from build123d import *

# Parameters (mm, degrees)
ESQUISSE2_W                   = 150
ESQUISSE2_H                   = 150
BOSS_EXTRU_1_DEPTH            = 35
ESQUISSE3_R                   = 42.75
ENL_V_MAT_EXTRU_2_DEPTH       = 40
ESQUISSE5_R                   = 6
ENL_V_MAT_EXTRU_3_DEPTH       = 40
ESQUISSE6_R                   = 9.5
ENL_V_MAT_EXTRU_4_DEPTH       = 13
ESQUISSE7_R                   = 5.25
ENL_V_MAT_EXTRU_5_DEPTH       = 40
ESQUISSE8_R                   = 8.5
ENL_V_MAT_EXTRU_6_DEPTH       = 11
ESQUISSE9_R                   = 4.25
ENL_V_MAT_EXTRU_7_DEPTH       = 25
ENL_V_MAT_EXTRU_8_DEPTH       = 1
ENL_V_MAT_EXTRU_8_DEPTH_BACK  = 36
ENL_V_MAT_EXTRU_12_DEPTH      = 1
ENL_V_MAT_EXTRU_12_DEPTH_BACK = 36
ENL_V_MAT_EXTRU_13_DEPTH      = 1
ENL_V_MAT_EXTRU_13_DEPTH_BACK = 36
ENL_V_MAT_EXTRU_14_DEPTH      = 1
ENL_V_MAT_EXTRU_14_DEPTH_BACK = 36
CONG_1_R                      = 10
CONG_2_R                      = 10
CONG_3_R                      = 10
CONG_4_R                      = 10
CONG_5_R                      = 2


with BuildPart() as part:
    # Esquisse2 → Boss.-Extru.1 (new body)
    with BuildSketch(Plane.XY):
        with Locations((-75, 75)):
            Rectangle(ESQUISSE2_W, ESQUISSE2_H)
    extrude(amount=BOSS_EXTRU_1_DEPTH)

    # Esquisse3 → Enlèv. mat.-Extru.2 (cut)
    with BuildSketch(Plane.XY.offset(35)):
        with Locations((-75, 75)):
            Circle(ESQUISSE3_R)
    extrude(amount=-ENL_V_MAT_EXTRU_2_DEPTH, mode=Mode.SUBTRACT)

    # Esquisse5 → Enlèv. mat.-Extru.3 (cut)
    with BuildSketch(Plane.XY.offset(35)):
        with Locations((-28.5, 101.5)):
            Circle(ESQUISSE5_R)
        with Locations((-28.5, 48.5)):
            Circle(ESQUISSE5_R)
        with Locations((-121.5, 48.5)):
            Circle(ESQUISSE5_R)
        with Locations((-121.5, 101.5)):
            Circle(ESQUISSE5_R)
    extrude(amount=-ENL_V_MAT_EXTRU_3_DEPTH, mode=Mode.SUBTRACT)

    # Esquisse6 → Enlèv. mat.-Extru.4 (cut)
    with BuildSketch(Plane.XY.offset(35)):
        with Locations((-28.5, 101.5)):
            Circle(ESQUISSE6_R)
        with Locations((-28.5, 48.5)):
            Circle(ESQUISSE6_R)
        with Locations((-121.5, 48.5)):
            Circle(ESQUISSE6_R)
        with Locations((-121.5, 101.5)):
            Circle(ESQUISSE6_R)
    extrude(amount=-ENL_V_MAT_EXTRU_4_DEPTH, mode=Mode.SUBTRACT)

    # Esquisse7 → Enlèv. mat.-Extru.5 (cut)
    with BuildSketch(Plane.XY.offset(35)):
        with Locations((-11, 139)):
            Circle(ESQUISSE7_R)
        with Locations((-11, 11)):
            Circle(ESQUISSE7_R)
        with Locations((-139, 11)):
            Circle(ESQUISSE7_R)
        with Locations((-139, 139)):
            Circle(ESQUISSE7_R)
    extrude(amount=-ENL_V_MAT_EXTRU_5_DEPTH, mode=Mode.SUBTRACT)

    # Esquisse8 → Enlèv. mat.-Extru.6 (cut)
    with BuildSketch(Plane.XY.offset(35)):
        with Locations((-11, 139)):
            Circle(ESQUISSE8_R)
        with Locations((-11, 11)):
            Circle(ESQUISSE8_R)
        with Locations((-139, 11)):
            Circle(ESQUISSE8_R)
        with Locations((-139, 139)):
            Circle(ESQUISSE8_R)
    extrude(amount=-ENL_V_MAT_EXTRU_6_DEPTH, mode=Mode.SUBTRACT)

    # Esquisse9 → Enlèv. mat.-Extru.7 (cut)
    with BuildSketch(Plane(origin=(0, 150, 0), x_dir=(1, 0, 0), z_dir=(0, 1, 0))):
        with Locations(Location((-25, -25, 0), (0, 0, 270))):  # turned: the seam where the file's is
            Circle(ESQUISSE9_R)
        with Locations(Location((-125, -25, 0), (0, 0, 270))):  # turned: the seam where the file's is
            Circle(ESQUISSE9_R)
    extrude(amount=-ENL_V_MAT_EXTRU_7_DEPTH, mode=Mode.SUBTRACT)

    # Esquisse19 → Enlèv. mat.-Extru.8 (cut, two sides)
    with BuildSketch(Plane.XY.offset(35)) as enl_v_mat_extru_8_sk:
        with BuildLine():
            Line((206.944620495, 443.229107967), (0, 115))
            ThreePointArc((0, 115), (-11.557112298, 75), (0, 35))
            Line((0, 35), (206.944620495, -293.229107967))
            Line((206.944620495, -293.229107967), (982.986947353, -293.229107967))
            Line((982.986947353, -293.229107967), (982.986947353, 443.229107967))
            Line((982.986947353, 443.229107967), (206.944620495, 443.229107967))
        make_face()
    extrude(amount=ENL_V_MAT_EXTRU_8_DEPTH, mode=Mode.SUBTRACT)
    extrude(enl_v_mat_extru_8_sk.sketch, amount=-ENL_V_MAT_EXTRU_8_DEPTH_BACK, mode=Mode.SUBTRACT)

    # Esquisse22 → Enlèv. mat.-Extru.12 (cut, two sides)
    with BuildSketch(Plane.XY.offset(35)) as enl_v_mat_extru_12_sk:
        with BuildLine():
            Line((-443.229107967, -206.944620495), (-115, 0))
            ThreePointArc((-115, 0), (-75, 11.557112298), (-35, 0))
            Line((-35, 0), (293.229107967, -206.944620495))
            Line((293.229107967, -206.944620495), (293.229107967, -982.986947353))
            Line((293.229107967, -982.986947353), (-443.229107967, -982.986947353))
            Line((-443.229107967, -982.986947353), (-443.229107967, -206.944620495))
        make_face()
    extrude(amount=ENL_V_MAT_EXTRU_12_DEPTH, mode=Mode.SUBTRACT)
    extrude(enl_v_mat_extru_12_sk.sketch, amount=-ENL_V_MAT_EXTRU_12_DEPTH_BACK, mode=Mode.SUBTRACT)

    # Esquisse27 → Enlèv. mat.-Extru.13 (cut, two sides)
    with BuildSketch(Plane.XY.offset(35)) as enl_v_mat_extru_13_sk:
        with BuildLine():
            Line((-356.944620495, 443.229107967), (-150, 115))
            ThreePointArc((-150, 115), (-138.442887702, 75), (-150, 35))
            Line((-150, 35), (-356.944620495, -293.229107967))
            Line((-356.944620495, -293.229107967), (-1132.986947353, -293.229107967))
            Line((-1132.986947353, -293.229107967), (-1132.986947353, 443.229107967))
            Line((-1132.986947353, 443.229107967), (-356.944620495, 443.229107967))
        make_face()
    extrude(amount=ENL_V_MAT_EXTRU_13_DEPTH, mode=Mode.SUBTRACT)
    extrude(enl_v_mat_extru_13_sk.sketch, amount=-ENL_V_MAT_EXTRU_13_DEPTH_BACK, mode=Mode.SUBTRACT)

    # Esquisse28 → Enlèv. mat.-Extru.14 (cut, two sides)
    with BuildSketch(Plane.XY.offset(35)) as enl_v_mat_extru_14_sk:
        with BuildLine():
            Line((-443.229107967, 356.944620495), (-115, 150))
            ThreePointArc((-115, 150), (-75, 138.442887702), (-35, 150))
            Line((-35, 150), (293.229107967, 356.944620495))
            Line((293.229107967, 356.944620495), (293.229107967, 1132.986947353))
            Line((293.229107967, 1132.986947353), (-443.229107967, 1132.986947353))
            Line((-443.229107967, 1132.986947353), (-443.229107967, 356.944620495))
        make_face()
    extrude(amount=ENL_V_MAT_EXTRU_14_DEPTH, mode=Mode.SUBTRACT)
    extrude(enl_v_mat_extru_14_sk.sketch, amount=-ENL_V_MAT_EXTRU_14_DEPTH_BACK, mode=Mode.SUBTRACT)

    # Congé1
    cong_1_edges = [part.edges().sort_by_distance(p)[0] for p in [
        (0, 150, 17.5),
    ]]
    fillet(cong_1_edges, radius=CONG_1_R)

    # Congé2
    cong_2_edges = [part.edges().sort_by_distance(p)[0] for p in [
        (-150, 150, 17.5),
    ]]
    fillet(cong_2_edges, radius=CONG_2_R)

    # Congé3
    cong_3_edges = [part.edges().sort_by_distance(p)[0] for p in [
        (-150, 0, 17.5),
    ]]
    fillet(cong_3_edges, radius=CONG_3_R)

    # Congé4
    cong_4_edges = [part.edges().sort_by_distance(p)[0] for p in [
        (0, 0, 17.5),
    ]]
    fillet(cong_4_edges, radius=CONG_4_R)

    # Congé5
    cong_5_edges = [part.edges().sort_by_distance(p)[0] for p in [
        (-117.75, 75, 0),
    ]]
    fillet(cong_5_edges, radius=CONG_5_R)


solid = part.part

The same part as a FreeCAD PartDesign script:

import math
import FreeCAD as App
import Part
import Sketcher
from FreeCAD import Vector


def edges_at(feature, points):
    """Names of the edges that pass closest to the given points."""
    edges = feature.Shape.Edges
    near = lambda p: min(range(len(edges)), key=lambda i: edges[i].distToShape(Part.Vertex(*p))[0])
    return sorted({f"Edge{near(p) + 1}" for p in points})


def add_polygon(sketch, points):
    """Adds a closed chain of lines whose ends are joined by coincident constraints."""
    first, n = sketch.GeometryCount, len(points)
    for a, b in zip(points, points[1:] + points[:1]):
        sketch.addGeometry(Part.LineSegment(App.Vector(*a, 0), App.Vector(*b, 0)), False)
    for i in range(n):
        sketch.addConstraint(Sketcher.Constraint("Coincident", first + i, 2, first + (i + 1) % n, 1))

doc = App.newDocument("Part")
body = doc.addObject("PartDesign::Body", "Body")

# Sketch on XY plane
sketch1 = body.newObject("Sketcher::SketchObject", "Sketch")
sketch1.AttachmentSupport = (doc.getObject("XY_Plane"), [""])
sketch1.MapMode = "FlatFace"
add_polygon(sketch1, [(-150, 150), (-150, 0), (0, 0), (0, 150)])  # lines 0-3
sketch1.addConstraint([
    Sketcher.Constraint("Vertical", 0),
    Sketcher.Constraint("Horizontal", 1),
    Sketcher.Constraint("Vertical", 2),
    Sketcher.Constraint("Horizontal", 3),
    Sketcher.Constraint("Coincident", 1, 2, -1, 1),
    Sketcher.Constraint("Equal", 3, 0),
    Sketcher.Constraint("DistanceX", 1, 1, 1, 2, 150.0),
])
pad1 = body.newObject("PartDesign::Pad", "Pad")
pad1.Profile = sketch1
pad1.Length = 35

# Sketch on XY plane
sketch2 = body.newObject("Sketcher::SketchObject", "Sketch001")
sketch2.AttachmentSupport = (doc.getObject("XY_Plane"), [""])
sketch2.MapMode = "FlatFace"
sketch2.AttachmentOffset = App.Placement(Vector(0, 0, 35), App.Rotation())
sketch2.addGeometry(Part.Circle(Vector(-75, 75, 0), Vector(0, 0, 1), 42.75), False)
sketch2.addConstraint([
    Sketcher.Constraint("Diameter", 0, 85.5),
    Sketcher.Constraint("DistanceX", 0, 3, -1, 1, 75.0),
    Sketcher.Constraint("DistanceY", -1, 1, 0, 3, 75.0),
])
pocket1 = body.newObject("PartDesign::Pocket", "Pocket")
pocket1.Profile = sketch2
pocket1.Length = 40

# Sketch on XY plane
sketch3 = body.newObject("Sketcher::SketchObject", "Sketch002")
sketch3.AttachmentSupport = (doc.getObject("XY_Plane"), [""])
sketch3.MapMode = "FlatFace"
sketch3.AttachmentOffset = App.Placement(Vector(0, 0, 35), App.Rotation())
sketch3.addGeometry([
    Part.Circle(Vector(-28.5, 101.5, 0), Vector(0, 0, 1), 6),
    Part.Circle(Vector(-28.5, 48.5, 0), Vector(0, 0, 1), 6),
    Part.Circle(Vector(-121.5, 48.5, 0), Vector(0, 0, 1), 6),
    Part.Circle(Vector(-121.5, 101.5, 0), Vector(0, 0, 1), 6),
], False)
sketch3.addConstraint([
    Sketcher.Constraint("Equal", 0, 1),
    Sketcher.Constraint("Equal", 1, 2),
    Sketcher.Constraint("Equal", 2, 3),
    Sketcher.Constraint("Horizontal", 1, 3, 2, 3),
    Sketcher.Constraint("Horizontal", 0, 3, 3, 3),
    Sketcher.Constraint("Vertical", 0, 3, 1, 3),
    Sketcher.Constraint("Vertical", 2, 3, 3, 3),
    Sketcher.Constraint("Diameter", 0, 12.0),
    Sketcher.Constraint("DistanceY", 1, 3, 0, 3, 53.0),
    Sketcher.Constraint("DistanceX", 2, 3, 1, 3, 93.0),
    Sketcher.Constraint("DistanceX", 0, 3, -1, 1, 28.5),
    Sketcher.Constraint("DistanceY", -1, 1, 0, 3, 101.5),
])
pocket2 = body.newObject("PartDesign::Pocket", "Pocket001")
pocket2.Profile = sketch3
pocket2.Length = 40

# Sketch on XY plane
sketch4 = body.newObject("Sketcher::SketchObject", "Sketch003")
sketch4.AttachmentSupport = (doc.getObject("XY_Plane"), [""])
sketch4.MapMode = "FlatFace"
sketch4.AttachmentOffset = App.Placement(Vector(0, 0, 35), App.Rotation())
sketch4.addGeometry([
    Part.Circle(Vector(-28.5, 101.5, 0), Vector(0, 0, 1), 9.5),
    Part.Circle(Vector(-28.5, 48.5, 0), Vector(0, 0, 1), 9.5),
    Part.Circle(Vector(-121.5, 48.5, 0), Vector(0, 0, 1), 9.5),
    Part.Circle(Vector(-121.5, 101.5, 0), Vector(0, 0, 1), 9.5),
], False)
sketch4.addConstraint([
    Sketcher.Constraint("Equal", 0, 1),
    Sketcher.Constraint("Equal", 1, 2),
    Sketcher.Constraint("Equal", 2, 3),
    Sketcher.Constraint("Horizontal", 1, 3, 2, 3),
    Sketcher.Constraint("Horizontal", 0, 3, 3, 3),
    Sketcher.Constraint("Vertical", 0, 3, 1, 3),
    Sketcher.Constraint("Vertical", 2, 3, 3, 3),
    Sketcher.Constraint("Diameter", 0, 19.0),
    Sketcher.Constraint("DistanceY", 1, 3, 0, 3, 53.0),
    Sketcher.Constraint("DistanceX", 2, 3, 1, 3, 93.0),
    Sketcher.Constraint("DistanceX", 0, 3, -1, 1, 28.5),
    Sketcher.Constraint("DistanceY", -1, 1, 0, 3, 101.5),
])
pocket3 = body.newObject("PartDesign::Pocket", "Pocket002")
pocket3.Profile = sketch4
pocket3.Length = 13

# Sketch on XY plane
sketch5 = body.newObject("Sketcher::SketchObject", "Sketch004")
sketch5.AttachmentSupport = (doc.getObject("XY_Plane"), [""])
sketch5.MapMode = "FlatFace"
sketch5.AttachmentOffset = App.Placement(Vector(0, 0, 35), App.Rotation())
sketch5.addGeometry([
    Part.Circle(Vector(-11, 139, 0), Vector(0, 0, 1), 5.25),
    Part.Circle(Vector(-11, 11, 0), Vector(0, 0, 1), 5.25),
    Part.Circle(Vector(-139, 11, 0), Vector(0, 0, 1), 5.25),
    Part.Circle(Vector(-139, 139, 0), Vector(0, 0, 1), 5.25),
], False)
sketch5.addConstraint([
    Sketcher.Constraint("Equal", 0, 1),
    Sketcher.Constraint("Equal", 1, 2),
    Sketcher.Constraint("Equal", 2, 3),
    Sketcher.Constraint("Horizontal", 1, 3, 2, 3),
    Sketcher.Constraint("Horizontal", 0, 3, 3, 3),
    Sketcher.Constraint("Vertical", 0, 3, 1, 3),
    Sketcher.Constraint("Vertical", 2, 3, 3, 3),
    Sketcher.Constraint("Diameter", 0, 10.5),
    Sketcher.Constraint("DistanceX", 0, 3, -1, 1, 11.0),
    Sketcher.Constraint("DistanceY", -1, 1, 0, 3, 139.0),
    Sketcher.Constraint("DistanceY", -1, 1, 1, 3, 11.0),
    Sketcher.Constraint("DistanceX", 2, 3, -1, 1, 139.0),
])
pocket4 = body.newObject("PartDesign::Pocket", "Pocket003")
pocket4.Profile = sketch5
pocket4.Length = 40

# Sketch on XY plane
sketch6 = body.newObject("Sketcher::SketchObject", "Sketch005")
sketch6.AttachmentSupport = (doc.getObject("XY_Plane"), [""])
sketch6.MapMode = "FlatFace"
sketch6.AttachmentOffset = App.Placement(Vector(0, 0, 35), App.Rotation())
sketch6.addGeometry([
    Part.Circle(Vector(-11, 139, 0), Vector(0, 0, 1), 8.5),
    Part.Circle(Vector(-11, 11, 0), Vector(0, 0, 1), 8.5),
    Part.Circle(Vector(-139, 11, 0), Vector(0, 0, 1), 8.5),
    Part.Circle(Vector(-139, 139, 0), Vector(0, 0, 1), 8.5),
], False)
sketch6.addConstraint([
    Sketcher.Constraint("Equal", 0, 1),
    Sketcher.Constraint("Equal", 1, 2),
    Sketcher.Constraint("Equal", 2, 3),
    Sketcher.Constraint("Horizontal", 1, 3, 2, 3),
    Sketcher.Constraint("Horizontal", 0, 3, 3, 3),
    Sketcher.Constraint("Vertical", 0, 3, 1, 3),
    Sketcher.Constraint("Vertical", 2, 3, 3, 3),
    Sketcher.Constraint("Diameter", 0, 17.0),
    Sketcher.Constraint("DistanceX", 0, 3, -1, 1, 11.0),
    Sketcher.Constraint("DistanceY", -1, 1, 0, 3, 139.0),
    Sketcher.Constraint("DistanceY", -1, 1, 1, 3, 11.0),
    Sketcher.Constraint("DistanceX", 2, 3, -1, 1, 139.0),
])
pocket5 = body.newObject("PartDesign::Pocket", "Pocket004")
pocket5.Profile = sketch6
pocket5.Length = 11

# Sketch on XZ plane
sketch7 = body.newObject("Sketcher::SketchObject", "Sketch006")
sketch7.AttachmentSupport = (doc.getObject("XZ_Plane"), [""])
sketch7.MapMode = "FlatFace"
sketch7.AttachmentOffset = App.Placement(Vector(0, 0, -150), App.Rotation())
sketch7.addGeometry([
    Part.Circle(Vector(-25, 25, 0), Vector(0, 0, 1), 4.25),
    Part.Circle(Vector(-125, 25, 0), Vector(0, 0, 1), 4.25),
], False)
sketch7.addConstraint([
    Sketcher.Constraint("Equal", 0, 1),
    Sketcher.Constraint("Horizontal", 0, 3, 1, 3),
    Sketcher.Constraint("Diameter", 0, 8.5),
    Sketcher.Constraint("DistanceX", 0, 3, -1, 1, 25.0),
    Sketcher.Constraint("DistanceY", -1, 1, 0, 3, 25.0),
    Sketcher.Constraint("DistanceX", 1, 3, -1, 1, 125.0),
])
pocket6 = body.newObject("PartDesign::Pocket", "Pocket005")
pocket6.Profile = sketch7
pocket6.Length = 25
pocket6.Reversed = True

# Sketch on XY plane
sketch8 = body.newObject("Sketcher::SketchObject", "Sketch007")
sketch8.AttachmentSupport = (doc.getObject("XY_Plane"), [""])
sketch8.MapMode = "FlatFace"
sketch8.AttachmentOffset = App.Placement(Vector(0, 0, 35), App.Rotation())
sketch8.addGeometry([
    Part.LineSegment(Vector(206.94462, 443.229108, 0), Vector(0, 115, 0)),  # 0
    Part.ArcOfCircle(Part.Circle(Vector(63.442888, 75, 0), Vector(0, 0, 1), 75), math.radians(147.769047), math.radians(212.230953)),  # 1
    Part.LineSegment(Vector(0, 35, 0), Vector(206.94462, -293.229108, 0)),  # 2
    Part.LineSegment(Vector(206.94462, -293.229108, 0), Vector(982.986947, -293.229108, 0)),  # 3
    Part.LineSegment(Vector(982.986947, -293.229108, 0), Vector(982.986947, 443.229108, 0)),  # 4
    Part.LineSegment(Vector(982.986947, 443.229108, 0), Vector(206.94462, 443.229108, 0)),  # 5
], False)
sketch8.addConstraint([
    Sketcher.Constraint("Tangent", 0, 2, 1, 1),
    Sketcher.Constraint("Tangent", 1, 2, 2, 1),
    Sketcher.Constraint("Coincident", 2, 2, 3, 1),
    Sketcher.Constraint("Coincident", 3, 2, 4, 1),
    Sketcher.Constraint("Coincident", 4, 2, 5, 1),
    Sketcher.Constraint("Coincident", 5, 2, 0, 1),
    Sketcher.Constraint("Horizontal", 3),
    Sketcher.Constraint("Vertical", 4),
    Sketcher.Constraint("Horizontal", 5),
    Sketcher.Constraint("PointOnObject", 0, 2, -2),
    Sketcher.Constraint("PointOnObject", 1, 2, -2),
    Sketcher.Constraint("Vertical", 2, 2, 5, 2),
    Sketcher.Constraint("Radius", 1, 75.0),
    Sketcher.Constraint("DistanceY", -1, 1, 1, 3, 75.0),
    Sketcher.Constraint("DistanceY", -1, 1, 0, 2, 115.0),
    Sketcher.Constraint("DistanceX", 3, 1, 3, 2, 776.042327),
    Sketcher.Constraint("DistanceY", 4, 1, 4, 2, 736.458216),
])
pocket7 = body.newObject("PartDesign::Pocket", "Pocket006")
pocket7.Profile = sketch8
pocket7.Type = "ThroughAll"
pocket7.Midplane = True

# Sketch on XY plane
sketch9 = body.newObject("Sketcher::SketchObject", "Sketch008")
sketch9.AttachmentSupport = (doc.getObject("XY_Plane"), [""])
sketch9.MapMode = "FlatFace"
sketch9.AttachmentOffset = App.Placement(Vector(0, 0, 35), App.Rotation())
sketch9.addGeometry([
    Part.LineSegment(Vector(-115, 0, 0), Vector(-443.229108, -206.94462, 0)),  # 0
    Part.LineSegment(Vector(-443.229108, -206.94462, 0), Vector(-443.229108, -982.986947, 0)),  # 1
    Part.LineSegment(Vector(-443.229108, -982.986947, 0), Vector(293.229108, -982.986947, 0)),  # 2
    Part.LineSegment(Vector(293.229108, -982.986947, 0), Vector(293.229108, -206.94462, 0)),  # 3
    Part.LineSegment(Vector(293.229108, -206.94462, 0), Vector(-35, 0, 0)),  # 4
    Part.ArcOfCircle(Part.Circle(Vector(-75, -63.442888, 0), Vector(0, 0, 1), 75), math.radians(57.769047), math.radians(122.230953)),  # 5
], False)
sketch9.addConstraint([
    Sketcher.Constraint("Coincident", 0, 2, 1, 1),
    Sketcher.Constraint("Coincident", 1, 2, 2, 1),
    Sketcher.Constraint("Coincident", 2, 2, 3, 1),
    Sketcher.Constraint("Coincident", 3, 2, 4, 1),
    Sketcher.Constraint("Tangent", 4, 2, 5, 1),
    Sketcher.Constraint("Tangent", 5, 2, 0, 1),
    Sketcher.Constraint("Vertical", 1),
    Sketcher.Constraint("Horizontal", 2),
    Sketcher.Constraint("Vertical", 3),
    Sketcher.Constraint("PointOnObject", 4, 2, -1),
    Sketcher.Constraint("PointOnObject", 5, 2, -1),
    Sketcher.Constraint("Horizontal", 0, 2, 3, 2),
    Sketcher.Constraint("Radius", 5, 75.0),
    Sketcher.Constraint("DistanceX", 5, 3, -1, 1, 75.0),
    Sketcher.Constraint("DistanceX", 4, 2, -1, 1, 35.0),
    Sketcher.Constraint("DistanceX", 2, 1, 2, 2, 736.458216),
    Sketcher.Constraint("DistanceY", 1, 2, 1, 1, 776.042327),
])
pocket8 = body.newObject("PartDesign::Pocket", "Pocket007")
pocket8.Profile = sketch9
pocket8.Type = "ThroughAll"
pocket8.Midplane = True

# Sketch on XY plane
sketch10 = body.newObject("Sketcher::SketchObject", "Sketch009")
sketch10.AttachmentSupport = (doc.getObject("XY_Plane"), [""])
sketch10.MapMode = "FlatFace"
sketch10.AttachmentOffset = App.Placement(Vector(0, 0, 35), App.Rotation())
sketch10.addGeometry([
    Part.LineSegment(Vector(-150, 115, 0), Vector(-356.94462, 443.229108, 0)),  # 0
    Part.LineSegment(Vector(-356.94462, 443.229108, 0), Vector(-1132.986947, 443.229108, 0)),  # 1
    Part.LineSegment(Vector(-1132.986947, 443.229108, 0), Vector(-1132.986947, -293.229108, 0)),  # 2
    Part.LineSegment(Vector(-1132.986947, -293.229108, 0), Vector(-356.94462, -293.229108, 0)),  # 3
    Part.LineSegment(Vector(-356.94462, -293.229108, 0), Vector(-150, 35, 0)),  # 4
    Part.ArcOfCircle(Part.Circle(Vector(-213.442888, 75, 0), Vector(0, 0, 1), 75), math.radians(-32.230953), math.radians(32.230953)),  # 5
], False)
sketch10.addConstraint([
    Sketcher.Constraint("Coincident", 0, 2, 1, 1),
    Sketcher.Constraint("Coincident", 1, 2, 2, 1),
    Sketcher.Constraint("Coincident", 2, 2, 3, 1),
    Sketcher.Constraint("Coincident", 3, 2, 4, 1),
    Sketcher.Constraint("Tangent", 4, 2, 5, 1),
    Sketcher.Constraint("Tangent", 5, 2, 0, 1),
    Sketcher.Constraint("Horizontal", 1),
    Sketcher.Constraint("Vertical", 2),
    Sketcher.Constraint("Horizontal", 3),
    Sketcher.Constraint("Vertical", 0, 2, 3, 2),
    Sketcher.Constraint("Equal", 0, 4),
    Sketcher.Constraint("Radius", 5, 75.0),
    Sketcher.Constraint("DistanceY", -1, 1, 5, 3, 75.0),
    Sketcher.Constraint("DistanceX", 4, 2, -1, 1, 150.0),
    Sketcher.Constraint("DistanceY", -1, 1, 4, 2, 35.0),
    Sketcher.Constraint("DistanceX", 1, 2, 1, 1, 776.042327),
    Sketcher.Constraint("DistanceY", 2, 2, 2, 1, 736.458216),
])
pocket9 = body.newObject("PartDesign::Pocket", "Pocket008")
pocket9.Profile = sketch10
pocket9.Type = "ThroughAll"
pocket9.Midplane = True

# Sketch on XY plane
sketch11 = body.newObject("Sketcher::SketchObject", "Sketch010")
sketch11.AttachmentSupport = (doc.getObject("XY_Plane"), [""])
sketch11.MapMode = "FlatFace"
sketch11.AttachmentOffset = App.Placement(Vector(0, 0, 35), App.Rotation())
sketch11.addGeometry([
    Part.LineSegment(Vector(-443.229108, 356.94462, 0), Vector(-115, 150, 0)),  # 0
    Part.ArcOfCircle(Part.Circle(Vector(-75, 213.442888, 0), Vector(0, 0, 1), 75), math.radians(-122.230953), math.radians(-57.769047)),  # 1
    Part.LineSegment(Vector(-35, 150, 0), Vector(293.229108, 356.94462, 0)),  # 2
    Part.LineSegment(Vector(293.229108, 356.94462, 0), Vector(293.229108, 1132.986947, 0)),  # 3
    Part.LineSegment(Vector(293.229108, 1132.986947, 0), Vector(-443.229108, 1132.986947, 0)),  # 4
    Part.LineSegment(Vector(-443.229108, 1132.986947, 0), Vector(-443.229108, 356.94462, 0)),  # 5
], False)
sketch11.addConstraint([
    Sketcher.Constraint("Tangent", 0, 2, 1, 1),
    Sketcher.Constraint("Tangent", 1, 2, 2, 1),
    Sketcher.Constraint("Coincident", 2, 2, 3, 1),
    Sketcher.Constraint("Coincident", 3, 2, 4, 1),
    Sketcher.Constraint("Coincident", 4, 2, 5, 1),
    Sketcher.Constraint("Coincident", 5, 2, 0, 1),
    Sketcher.Constraint("Vertical", 3),
    Sketcher.Constraint("Horizontal", 4),
    Sketcher.Constraint("Vertical", 5),
    Sketcher.Constraint("Horizontal", 0, 2, 1, 2),
    Sketcher.Constraint("Horizontal", 2, 2, 5, 2),
    Sketcher.Constraint("Radius", 1, 75.0),
    Sketcher.Constraint("DistanceX", 1, 3, -1, 1, 75.0),
    Sketcher.Constraint("DistanceX", 0, 2, -1, 1, 115.0),
    Sketcher.Constraint("DistanceY", -1, 1, 0, 2, 150.0),
    Sketcher.Constraint("DistanceX", 4, 2, 4, 1, 736.458216),
    Sketcher.Constraint("DistanceY", 3, 1, 3, 2, 776.042327),
])
pocket10 = body.newObject("PartDesign::Pocket", "Pocket009")
pocket10.Profile = sketch11
pocket10.Type = "ThroughAll"
pocket10.Midplane = True
doc.recompute()

fillet = body.newObject("PartDesign::Fillet", "Fillet")
fillet.Base = (pocket10, edges_at(pocket10, [(0, 150, 17.5)]))
fillet.Radius = 10
doc.recompute()

fillet2 = body.newObject("PartDesign::Fillet", "Fillet001")
fillet2.Base = (fillet, edges_at(fillet, [(-150, 150, 17.5)]))
fillet2.Radius = 10
doc.recompute()

fillet3 = body.newObject("PartDesign::Fillet", "Fillet002")
fillet3.Base = (fillet2, edges_at(fillet2, [(-150, 0, 17.5)]))
fillet3.Radius = 10
doc.recompute()

fillet4 = body.newObject("PartDesign::Fillet", "Fillet003")
fillet4.Base = (fillet3, edges_at(fillet3, [(0, 0, 17.5)]))
fillet4.Radius = 10
doc.recompute()

fillet5 = body.newObject("PartDesign::Fillet", "Fillet004")
fillet5.Base = (fillet4, edges_at(fillet4, [(-117.75, 75, 0)]))
fillet5.Radius = 2

doc.recompute()
